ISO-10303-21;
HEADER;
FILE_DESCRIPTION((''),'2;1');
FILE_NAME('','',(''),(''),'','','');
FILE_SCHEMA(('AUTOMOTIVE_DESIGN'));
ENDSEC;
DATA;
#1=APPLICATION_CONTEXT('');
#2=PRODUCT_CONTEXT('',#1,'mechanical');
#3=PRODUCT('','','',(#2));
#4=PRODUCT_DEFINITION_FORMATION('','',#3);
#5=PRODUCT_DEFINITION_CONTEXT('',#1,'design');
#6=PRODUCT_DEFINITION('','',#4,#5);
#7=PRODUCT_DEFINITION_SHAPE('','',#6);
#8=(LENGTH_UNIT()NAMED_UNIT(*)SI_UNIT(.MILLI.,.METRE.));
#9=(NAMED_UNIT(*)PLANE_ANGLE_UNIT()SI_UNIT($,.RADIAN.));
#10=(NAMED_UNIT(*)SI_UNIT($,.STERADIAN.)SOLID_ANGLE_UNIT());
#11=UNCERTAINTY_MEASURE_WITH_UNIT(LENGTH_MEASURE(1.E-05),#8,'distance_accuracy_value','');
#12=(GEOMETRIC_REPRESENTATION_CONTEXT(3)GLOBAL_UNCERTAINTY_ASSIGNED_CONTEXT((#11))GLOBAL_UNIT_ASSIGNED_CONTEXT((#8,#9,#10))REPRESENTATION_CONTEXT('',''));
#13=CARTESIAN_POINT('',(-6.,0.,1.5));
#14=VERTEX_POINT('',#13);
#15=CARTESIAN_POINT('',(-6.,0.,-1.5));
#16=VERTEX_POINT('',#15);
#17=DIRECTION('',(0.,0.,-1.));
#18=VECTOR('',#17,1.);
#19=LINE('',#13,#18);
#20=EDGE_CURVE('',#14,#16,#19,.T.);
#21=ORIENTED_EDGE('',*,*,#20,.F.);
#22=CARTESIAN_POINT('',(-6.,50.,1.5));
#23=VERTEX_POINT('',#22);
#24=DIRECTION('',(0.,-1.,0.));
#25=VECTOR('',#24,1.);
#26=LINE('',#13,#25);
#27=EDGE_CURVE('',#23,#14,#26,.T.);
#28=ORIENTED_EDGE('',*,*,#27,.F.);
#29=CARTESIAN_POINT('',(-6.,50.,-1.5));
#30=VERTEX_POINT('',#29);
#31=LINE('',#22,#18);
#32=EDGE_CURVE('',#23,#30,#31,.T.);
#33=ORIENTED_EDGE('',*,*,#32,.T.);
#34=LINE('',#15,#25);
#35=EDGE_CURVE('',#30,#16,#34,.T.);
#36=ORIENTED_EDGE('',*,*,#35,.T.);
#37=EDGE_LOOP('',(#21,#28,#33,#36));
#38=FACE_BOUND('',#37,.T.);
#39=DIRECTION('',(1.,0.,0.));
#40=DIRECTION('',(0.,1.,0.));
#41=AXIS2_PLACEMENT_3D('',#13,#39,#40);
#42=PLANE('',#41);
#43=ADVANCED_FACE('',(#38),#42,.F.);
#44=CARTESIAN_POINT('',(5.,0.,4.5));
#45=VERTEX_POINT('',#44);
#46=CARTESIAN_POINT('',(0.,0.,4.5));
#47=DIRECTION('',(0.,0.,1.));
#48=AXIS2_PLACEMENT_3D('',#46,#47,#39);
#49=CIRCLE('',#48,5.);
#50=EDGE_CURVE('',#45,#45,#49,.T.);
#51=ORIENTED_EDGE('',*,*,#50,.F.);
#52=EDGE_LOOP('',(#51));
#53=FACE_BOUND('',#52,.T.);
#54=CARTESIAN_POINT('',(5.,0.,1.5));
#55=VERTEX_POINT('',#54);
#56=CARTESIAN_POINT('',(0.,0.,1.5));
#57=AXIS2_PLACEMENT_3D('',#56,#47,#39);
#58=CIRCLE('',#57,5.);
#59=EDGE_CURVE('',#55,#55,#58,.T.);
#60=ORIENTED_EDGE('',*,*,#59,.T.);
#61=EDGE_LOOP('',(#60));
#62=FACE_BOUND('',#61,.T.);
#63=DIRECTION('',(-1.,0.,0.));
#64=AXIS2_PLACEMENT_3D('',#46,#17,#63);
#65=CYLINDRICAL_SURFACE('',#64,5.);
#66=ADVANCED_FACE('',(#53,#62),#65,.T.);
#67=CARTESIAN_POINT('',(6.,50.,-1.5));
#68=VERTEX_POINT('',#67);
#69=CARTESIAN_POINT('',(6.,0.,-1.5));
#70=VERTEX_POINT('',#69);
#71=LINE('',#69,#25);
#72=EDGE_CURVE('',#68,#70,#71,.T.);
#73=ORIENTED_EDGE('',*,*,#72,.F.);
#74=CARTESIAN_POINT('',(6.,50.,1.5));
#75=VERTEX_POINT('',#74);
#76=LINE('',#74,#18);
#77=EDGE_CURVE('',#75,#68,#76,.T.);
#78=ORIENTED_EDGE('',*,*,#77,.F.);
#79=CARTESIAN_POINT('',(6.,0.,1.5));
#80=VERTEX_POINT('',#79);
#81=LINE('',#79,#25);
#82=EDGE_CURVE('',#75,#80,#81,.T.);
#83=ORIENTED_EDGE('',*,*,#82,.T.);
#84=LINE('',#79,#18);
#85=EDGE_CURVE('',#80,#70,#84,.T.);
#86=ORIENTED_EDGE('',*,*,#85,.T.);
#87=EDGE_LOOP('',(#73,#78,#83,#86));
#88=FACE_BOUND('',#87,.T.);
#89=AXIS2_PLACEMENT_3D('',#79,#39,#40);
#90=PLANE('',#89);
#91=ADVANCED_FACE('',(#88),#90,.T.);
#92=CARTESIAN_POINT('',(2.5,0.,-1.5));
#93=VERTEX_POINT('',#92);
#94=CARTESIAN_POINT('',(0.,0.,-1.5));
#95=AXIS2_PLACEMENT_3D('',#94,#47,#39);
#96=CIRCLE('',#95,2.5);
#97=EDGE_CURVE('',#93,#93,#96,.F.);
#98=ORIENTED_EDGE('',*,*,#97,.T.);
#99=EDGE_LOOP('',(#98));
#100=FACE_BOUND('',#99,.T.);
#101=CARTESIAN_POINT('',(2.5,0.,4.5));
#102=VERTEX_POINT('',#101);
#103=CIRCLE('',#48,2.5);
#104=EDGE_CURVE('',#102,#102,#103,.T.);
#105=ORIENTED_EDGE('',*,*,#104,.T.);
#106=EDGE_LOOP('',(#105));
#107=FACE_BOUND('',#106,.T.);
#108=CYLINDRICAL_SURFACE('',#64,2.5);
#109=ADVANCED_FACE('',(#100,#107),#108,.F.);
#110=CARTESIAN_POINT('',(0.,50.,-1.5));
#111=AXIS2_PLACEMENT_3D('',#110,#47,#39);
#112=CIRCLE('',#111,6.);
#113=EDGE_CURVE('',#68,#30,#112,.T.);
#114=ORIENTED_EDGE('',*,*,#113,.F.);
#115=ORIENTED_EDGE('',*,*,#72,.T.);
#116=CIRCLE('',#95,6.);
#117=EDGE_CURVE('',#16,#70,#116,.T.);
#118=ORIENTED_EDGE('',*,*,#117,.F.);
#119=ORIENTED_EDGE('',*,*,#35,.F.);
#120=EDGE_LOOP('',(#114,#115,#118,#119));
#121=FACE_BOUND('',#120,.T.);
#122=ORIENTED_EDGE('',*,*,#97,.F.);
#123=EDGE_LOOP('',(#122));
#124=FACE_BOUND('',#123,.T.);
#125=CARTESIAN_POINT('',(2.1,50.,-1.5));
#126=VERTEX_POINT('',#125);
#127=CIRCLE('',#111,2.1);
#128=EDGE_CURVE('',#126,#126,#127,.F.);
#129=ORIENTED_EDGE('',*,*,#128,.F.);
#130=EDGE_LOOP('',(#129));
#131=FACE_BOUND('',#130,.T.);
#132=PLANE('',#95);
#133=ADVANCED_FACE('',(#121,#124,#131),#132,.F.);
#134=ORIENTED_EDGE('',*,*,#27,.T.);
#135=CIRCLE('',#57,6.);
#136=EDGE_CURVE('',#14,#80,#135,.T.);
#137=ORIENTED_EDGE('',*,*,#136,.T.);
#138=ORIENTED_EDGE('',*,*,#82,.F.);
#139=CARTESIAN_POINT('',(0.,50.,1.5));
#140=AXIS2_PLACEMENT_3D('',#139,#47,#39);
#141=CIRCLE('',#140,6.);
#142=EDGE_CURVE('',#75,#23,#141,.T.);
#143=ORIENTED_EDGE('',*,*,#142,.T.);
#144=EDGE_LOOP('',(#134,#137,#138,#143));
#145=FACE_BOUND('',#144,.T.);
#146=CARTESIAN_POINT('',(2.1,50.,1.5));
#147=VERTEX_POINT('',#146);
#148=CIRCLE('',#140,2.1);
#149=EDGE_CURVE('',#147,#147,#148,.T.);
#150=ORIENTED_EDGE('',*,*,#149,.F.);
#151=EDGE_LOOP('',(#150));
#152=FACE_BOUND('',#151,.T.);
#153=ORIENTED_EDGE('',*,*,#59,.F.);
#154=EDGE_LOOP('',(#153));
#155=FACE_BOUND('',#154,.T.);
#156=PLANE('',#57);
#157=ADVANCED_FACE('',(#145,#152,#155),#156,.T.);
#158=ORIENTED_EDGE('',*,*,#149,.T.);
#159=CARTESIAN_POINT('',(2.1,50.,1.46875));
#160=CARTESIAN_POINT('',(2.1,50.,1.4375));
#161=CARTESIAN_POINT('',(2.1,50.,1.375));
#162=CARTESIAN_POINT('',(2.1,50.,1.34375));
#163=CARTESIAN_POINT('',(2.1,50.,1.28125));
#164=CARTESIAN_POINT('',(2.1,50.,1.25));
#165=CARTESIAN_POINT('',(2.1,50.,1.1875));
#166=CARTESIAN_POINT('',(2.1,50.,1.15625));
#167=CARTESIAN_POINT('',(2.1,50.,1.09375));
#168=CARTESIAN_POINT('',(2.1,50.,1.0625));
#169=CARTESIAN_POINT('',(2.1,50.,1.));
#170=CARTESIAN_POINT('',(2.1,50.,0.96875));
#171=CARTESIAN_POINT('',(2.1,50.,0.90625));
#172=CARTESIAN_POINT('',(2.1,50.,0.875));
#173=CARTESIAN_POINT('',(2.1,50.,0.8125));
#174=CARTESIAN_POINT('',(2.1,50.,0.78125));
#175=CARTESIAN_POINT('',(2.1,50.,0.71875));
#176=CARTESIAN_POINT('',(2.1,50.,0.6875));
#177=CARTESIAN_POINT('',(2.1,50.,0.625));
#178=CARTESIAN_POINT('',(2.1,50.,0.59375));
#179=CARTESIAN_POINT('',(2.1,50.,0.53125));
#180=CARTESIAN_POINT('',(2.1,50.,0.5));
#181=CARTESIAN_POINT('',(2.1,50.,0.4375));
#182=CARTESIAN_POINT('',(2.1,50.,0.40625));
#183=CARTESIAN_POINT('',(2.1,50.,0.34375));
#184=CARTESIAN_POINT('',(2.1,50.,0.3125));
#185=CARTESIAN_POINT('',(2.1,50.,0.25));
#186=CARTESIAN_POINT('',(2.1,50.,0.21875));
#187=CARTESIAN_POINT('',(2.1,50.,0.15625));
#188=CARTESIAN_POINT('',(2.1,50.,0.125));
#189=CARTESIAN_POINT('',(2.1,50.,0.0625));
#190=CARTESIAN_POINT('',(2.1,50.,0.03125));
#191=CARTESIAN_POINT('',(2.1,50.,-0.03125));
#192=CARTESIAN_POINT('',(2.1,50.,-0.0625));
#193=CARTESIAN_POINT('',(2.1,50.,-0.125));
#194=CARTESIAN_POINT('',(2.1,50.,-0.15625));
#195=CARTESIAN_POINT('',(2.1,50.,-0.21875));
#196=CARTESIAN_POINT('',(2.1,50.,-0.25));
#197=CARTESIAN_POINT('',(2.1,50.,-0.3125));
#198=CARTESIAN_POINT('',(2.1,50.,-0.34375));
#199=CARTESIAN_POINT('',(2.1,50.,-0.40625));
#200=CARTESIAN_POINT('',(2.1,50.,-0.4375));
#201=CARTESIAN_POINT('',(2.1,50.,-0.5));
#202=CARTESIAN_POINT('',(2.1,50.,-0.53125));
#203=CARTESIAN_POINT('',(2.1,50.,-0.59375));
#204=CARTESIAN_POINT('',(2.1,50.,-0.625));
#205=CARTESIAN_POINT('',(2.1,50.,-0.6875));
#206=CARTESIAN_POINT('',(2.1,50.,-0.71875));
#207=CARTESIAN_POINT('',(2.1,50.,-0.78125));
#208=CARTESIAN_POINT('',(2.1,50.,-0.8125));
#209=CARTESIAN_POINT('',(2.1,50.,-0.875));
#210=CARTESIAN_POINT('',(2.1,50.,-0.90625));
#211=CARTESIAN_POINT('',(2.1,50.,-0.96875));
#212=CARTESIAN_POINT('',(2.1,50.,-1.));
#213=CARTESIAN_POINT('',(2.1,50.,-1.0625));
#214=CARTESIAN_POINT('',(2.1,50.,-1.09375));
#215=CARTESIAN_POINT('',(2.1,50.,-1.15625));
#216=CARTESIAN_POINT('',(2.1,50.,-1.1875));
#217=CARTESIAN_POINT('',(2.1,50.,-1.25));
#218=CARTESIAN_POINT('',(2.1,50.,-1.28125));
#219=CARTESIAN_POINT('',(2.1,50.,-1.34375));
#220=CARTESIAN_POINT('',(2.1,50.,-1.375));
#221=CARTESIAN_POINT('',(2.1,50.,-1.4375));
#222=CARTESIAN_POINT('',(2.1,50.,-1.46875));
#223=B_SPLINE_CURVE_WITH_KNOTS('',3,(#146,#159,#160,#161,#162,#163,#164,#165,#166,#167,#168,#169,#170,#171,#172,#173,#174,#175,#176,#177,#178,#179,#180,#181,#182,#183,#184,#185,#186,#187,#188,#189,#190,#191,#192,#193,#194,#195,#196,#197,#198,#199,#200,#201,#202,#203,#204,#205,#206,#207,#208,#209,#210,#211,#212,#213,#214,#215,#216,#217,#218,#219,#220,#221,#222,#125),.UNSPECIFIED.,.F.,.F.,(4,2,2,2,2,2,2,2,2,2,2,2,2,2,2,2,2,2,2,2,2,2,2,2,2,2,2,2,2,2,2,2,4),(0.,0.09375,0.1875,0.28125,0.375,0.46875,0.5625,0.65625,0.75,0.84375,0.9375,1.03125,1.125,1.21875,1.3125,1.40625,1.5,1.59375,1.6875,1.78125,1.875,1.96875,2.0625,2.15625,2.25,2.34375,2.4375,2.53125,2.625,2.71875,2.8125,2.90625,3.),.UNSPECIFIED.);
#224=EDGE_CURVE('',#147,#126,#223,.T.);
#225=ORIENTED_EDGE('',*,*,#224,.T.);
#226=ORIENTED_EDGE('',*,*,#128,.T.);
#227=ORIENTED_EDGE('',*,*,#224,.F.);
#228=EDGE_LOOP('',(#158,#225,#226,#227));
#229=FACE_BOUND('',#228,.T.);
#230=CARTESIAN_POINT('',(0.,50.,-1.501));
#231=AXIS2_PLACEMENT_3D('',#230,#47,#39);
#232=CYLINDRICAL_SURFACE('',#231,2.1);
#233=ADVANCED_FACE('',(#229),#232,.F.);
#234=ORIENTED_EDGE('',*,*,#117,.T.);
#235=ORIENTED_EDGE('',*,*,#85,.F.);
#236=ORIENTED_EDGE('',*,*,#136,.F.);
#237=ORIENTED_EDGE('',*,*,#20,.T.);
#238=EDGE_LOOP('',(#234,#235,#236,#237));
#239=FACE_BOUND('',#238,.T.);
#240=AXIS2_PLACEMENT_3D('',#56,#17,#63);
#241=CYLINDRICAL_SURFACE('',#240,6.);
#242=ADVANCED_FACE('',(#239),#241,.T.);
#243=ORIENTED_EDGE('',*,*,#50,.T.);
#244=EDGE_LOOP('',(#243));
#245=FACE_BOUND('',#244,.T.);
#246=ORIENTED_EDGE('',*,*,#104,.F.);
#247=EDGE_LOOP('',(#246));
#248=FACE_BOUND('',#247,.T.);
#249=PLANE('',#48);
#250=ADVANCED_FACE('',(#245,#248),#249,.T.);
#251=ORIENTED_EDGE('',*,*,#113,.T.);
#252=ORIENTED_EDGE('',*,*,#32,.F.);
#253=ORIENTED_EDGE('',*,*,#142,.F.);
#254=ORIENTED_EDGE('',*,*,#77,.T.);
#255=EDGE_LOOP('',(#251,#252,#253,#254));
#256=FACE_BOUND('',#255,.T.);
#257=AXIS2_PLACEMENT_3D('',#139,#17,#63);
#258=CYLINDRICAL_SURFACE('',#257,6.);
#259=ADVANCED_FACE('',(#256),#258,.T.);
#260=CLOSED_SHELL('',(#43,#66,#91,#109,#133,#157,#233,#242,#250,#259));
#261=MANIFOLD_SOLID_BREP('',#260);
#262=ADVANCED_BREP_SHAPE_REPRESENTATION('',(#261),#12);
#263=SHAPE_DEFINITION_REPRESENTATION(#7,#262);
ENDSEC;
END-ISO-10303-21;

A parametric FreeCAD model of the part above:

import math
import FreeCAD as App
import Part
import Sketcher

V = App.Vector

doc = App.newDocument("Part")
body = doc.addObject("PartDesign::Body", "Body")

# Sketch on XY plane
sketch1 = body.newObject("Sketcher::SketchObject", "Sketch")
sketch1.AttachmentSupport = (doc.getObject("XY_Plane"), [""])
sketch1.MapMode = "FlatFace"
sketch1.addGeometry([
    Part.LineSegment(V(-6, 50, 0), V(-6, 0, 0)),
    Part.ArcOfCircle(Part.Circle(V(0, 0, 0), V(0, 0, 1), 6), math.radians(180), math.radians(360)),
    Part.LineSegment(V(6, 0, 0), V(6, 50, 0)),
    Part.ArcOfCircle(Part.Circle(V(0, 50, 0), V(0, 0, 1), 6), math.radians(0), math.radians(180)),
], False)
sketch1.addConstraint([
    Sketcher.Constraint("Tangent", 0, 2, 1, 1),
    Sketcher.Constraint("Tangent", 1, 2, 2, 1),
    Sketcher.Constraint("Tangent", 2, 2, 3, 1),
    Sketcher.Constraint("Tangent", 3, 2, 0, 1),
    Sketcher.Constraint("Vertical", 0),
    Sketcher.Constraint("Vertical", 2),
    Sketcher.Constraint("Coincident", 1, 3, -1, 1),
    Sketcher.Constraint("Radius", 1, 6.0),
    Sketcher.Constraint("DistanceY", 0, 2, 0, 1, 50.0),
])
pad1 = body.newObject("PartDesign::Pad", "Pad")
pad1.Profile = sketch1
pad1.Length = 3
pad1.Midplane = True

# Sketch on XY plane
sketch2 = body.newObject("Sketcher::SketchObject", "Sketch001")
sketch2.AttachmentSupport = (doc.getObject("XY_Plane"), [""])
sketch2.MapMode = "FlatFace"
sketch2.AttachmentOffset = App.Placement(V(0, 0, 1.5), App.Rotation())
sketch2.addGeometry([
    Part.Circle(V(0, 0, 0), V(0, 0, 1), 5),
    Part.Circle(V(0, 0, 0), V(0, 0, 1), 2.5),
], False)
sketch2.addConstraint([
    Sketcher.Constraint("Coincident", 0, 3, -1, 1),
    Sketcher.Constraint("Coincident", 1, 3, -1, 1),
    Sketcher.Constraint("Diameter", 0, 10.0),
    Sketcher.Constraint("Diameter", 1, 5.0),
])
pad2 = body.newObject("PartDesign::Pad", "Pad001")
pad2.Profile = sketch2
pad2.Length = 3

# Sketch on XY plane
sketch3 = body.newObject("Sketcher::SketchObject", "Sketch002")
sketch3.AttachmentSupport = (doc.getObject("XY_Plane"), [""])
sketch3.MapMode = "FlatFace"
sketch3.AttachmentOffset = App.Placement(V(0, 0, 1.5), App.Rotation())
sketch3.addGeometry(Part.Circle(V(0, 0, 0), V(0, 0, 1), 2.5), False)
sketch3.addConstraint([
    Sketcher.Constraint("Coincident", 0, 3, -1, 1),
    Sketcher.Constraint("Diameter", 0, 5.0),
])
pocket1 = body.newObject("PartDesign::Pocket", "Pocket")
pocket1.Profile = sketch3
pocket1.Type = "UpToFirst"

# Sketch on XY plane
sketch4 = body.newObject("Sketcher::SketchObject", "Sketch003")
sketch4.AttachmentSupport = (doc.getObject("XY_Plane"), [""])
sketch4.MapMode = "FlatFace"
sketch4.AttachmentOffset = App.Placement(V(0, 0, 1.5), App.Rotation())
sketch4.addGeometry(Part.Circle(V(0, 50, 0), V(0, 0, 1), 2.1), False)
sketch4.addConstraint([
    Sketcher.Constraint("PointOnObject", 0, 3, -2),
    Sketcher.Constraint("Diameter", 0, 4.2),
    Sketcher.Constraint("DistanceY", -1, 1, 0, 3, 50.0),
])
pocket2 = body.newObject("PartDesign::Pocket", "Pocket001")
pocket2.Profile = sketch4
pocket2.Type = "UpToFirst"

doc.recompute()
